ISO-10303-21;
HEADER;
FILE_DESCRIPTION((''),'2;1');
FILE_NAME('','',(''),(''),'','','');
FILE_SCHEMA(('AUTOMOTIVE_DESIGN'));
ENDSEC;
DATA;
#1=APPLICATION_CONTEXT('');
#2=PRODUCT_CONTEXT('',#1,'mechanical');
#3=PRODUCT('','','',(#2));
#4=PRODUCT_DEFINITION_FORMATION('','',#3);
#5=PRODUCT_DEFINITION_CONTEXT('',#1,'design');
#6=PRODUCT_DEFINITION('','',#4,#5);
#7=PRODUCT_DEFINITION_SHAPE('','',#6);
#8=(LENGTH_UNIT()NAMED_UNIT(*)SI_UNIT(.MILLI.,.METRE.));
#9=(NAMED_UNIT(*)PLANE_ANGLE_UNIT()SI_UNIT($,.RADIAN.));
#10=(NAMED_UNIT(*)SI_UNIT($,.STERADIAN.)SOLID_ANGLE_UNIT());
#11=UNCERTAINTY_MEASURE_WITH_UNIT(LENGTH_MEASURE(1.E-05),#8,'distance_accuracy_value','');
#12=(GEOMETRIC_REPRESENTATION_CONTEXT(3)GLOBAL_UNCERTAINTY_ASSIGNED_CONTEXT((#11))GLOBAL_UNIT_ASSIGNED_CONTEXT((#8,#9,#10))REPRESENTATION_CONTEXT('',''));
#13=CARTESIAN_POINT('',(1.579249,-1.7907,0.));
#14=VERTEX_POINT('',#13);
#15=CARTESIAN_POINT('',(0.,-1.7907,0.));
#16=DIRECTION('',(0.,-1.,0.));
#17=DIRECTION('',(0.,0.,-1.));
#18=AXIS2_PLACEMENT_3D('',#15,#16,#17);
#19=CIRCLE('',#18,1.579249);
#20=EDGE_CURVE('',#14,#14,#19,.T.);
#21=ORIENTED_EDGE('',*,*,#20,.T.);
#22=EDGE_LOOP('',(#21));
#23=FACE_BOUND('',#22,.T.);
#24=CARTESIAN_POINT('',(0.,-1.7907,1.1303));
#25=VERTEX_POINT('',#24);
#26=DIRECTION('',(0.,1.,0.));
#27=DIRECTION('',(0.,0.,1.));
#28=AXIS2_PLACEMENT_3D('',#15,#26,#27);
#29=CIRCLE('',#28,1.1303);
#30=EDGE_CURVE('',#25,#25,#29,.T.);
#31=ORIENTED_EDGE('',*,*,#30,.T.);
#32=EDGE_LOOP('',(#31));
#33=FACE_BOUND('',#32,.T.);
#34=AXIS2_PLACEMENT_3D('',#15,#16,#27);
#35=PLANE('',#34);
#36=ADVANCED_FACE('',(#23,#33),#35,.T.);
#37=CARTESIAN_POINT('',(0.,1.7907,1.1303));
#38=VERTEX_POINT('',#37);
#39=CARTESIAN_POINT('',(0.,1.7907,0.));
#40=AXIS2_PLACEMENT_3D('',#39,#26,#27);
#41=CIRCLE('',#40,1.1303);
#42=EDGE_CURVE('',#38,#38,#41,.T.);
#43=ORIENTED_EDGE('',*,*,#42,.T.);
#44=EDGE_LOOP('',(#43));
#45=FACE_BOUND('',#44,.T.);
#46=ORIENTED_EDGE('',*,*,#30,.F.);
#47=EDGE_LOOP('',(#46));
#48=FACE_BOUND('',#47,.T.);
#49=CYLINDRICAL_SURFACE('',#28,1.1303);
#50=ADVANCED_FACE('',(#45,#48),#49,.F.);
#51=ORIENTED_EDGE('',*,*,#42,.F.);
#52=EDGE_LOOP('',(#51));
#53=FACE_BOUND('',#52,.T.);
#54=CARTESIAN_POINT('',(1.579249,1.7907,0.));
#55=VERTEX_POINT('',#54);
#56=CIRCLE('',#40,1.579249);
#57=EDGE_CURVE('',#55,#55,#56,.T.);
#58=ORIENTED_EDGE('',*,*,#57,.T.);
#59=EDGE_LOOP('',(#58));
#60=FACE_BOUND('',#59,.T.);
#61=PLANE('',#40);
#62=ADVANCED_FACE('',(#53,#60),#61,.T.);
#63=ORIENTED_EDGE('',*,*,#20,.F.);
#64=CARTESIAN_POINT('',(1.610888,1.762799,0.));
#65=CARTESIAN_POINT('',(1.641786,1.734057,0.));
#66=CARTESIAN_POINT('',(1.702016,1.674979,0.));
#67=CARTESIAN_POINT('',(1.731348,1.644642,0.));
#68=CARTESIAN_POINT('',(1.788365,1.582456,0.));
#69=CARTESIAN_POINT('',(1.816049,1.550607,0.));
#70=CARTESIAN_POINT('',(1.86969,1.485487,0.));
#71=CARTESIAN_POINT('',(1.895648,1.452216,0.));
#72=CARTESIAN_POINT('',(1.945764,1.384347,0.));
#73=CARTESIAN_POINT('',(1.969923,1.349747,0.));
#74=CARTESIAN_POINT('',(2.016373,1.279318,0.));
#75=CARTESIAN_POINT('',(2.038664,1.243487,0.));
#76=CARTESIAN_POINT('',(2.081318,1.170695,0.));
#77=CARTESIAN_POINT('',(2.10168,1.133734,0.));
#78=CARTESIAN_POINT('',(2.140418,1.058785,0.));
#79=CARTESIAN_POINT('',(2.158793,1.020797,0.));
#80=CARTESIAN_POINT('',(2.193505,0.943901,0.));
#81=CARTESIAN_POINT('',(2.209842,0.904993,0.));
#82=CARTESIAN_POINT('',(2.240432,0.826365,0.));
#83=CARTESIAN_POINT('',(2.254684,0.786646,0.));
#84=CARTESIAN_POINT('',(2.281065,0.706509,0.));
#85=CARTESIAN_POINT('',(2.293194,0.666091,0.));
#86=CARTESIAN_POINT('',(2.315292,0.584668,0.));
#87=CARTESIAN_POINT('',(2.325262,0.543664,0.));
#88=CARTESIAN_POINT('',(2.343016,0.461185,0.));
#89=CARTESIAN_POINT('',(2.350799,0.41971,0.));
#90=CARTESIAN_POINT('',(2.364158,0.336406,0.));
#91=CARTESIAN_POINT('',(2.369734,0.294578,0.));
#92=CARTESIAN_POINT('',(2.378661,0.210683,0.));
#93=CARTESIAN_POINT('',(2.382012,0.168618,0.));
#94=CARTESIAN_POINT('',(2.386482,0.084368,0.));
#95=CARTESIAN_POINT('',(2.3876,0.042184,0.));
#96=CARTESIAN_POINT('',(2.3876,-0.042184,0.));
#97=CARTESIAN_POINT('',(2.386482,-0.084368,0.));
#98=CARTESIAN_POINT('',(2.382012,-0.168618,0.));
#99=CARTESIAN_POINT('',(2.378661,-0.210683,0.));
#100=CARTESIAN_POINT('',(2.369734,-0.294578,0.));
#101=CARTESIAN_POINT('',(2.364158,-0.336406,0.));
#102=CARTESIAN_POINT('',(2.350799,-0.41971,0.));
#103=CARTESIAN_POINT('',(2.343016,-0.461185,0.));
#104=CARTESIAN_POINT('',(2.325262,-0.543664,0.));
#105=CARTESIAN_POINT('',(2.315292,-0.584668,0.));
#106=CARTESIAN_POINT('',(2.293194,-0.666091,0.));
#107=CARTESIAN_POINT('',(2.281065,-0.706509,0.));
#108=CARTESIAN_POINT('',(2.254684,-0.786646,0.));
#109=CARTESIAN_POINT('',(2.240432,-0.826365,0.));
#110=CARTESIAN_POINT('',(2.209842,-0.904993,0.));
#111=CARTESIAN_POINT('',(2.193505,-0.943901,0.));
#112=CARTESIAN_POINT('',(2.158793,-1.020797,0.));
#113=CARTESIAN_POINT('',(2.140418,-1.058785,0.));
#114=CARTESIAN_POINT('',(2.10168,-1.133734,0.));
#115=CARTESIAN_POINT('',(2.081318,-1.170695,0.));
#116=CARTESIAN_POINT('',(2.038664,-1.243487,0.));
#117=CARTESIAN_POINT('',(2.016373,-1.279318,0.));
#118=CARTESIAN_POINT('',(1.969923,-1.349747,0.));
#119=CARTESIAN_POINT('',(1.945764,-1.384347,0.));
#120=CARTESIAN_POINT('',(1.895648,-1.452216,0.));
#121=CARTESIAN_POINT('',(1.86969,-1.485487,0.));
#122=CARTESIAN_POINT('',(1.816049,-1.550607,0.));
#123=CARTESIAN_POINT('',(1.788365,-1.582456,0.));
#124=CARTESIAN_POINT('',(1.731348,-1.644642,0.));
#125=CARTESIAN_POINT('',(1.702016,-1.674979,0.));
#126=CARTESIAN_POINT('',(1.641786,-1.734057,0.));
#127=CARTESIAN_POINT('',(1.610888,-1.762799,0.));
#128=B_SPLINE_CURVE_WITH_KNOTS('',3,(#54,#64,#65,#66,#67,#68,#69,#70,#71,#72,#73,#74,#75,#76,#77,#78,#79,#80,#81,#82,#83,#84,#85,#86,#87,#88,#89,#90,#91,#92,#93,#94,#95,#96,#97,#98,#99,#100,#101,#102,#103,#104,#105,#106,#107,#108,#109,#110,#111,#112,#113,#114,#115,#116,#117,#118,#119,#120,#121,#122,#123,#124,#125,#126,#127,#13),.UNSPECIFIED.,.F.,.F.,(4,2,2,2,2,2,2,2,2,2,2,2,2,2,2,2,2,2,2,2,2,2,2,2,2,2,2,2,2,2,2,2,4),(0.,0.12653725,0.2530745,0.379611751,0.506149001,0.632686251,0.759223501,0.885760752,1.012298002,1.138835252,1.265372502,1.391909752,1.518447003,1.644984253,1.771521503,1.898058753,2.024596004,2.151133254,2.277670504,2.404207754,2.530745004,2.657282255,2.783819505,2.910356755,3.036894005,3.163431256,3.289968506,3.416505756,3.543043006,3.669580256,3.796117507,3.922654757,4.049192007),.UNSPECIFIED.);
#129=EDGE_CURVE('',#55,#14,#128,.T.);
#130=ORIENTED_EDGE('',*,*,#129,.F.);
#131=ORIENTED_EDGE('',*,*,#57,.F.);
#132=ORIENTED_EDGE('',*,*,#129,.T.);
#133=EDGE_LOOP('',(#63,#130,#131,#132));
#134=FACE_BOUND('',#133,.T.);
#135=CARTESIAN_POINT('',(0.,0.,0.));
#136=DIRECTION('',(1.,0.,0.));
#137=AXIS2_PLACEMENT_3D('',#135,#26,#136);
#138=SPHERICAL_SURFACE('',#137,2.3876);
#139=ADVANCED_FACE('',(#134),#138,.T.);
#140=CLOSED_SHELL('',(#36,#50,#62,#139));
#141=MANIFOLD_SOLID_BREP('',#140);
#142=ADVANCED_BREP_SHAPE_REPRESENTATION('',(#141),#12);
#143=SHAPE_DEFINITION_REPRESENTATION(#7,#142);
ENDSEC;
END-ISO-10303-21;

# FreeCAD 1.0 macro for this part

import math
import FreeCAD as App
import Part
import Sketcher
Q = App.Units.Quantity

doc = App.newDocument("Part")
body = doc.addObject("PartDesign::Body", "Body")

sketch1 = doc.addObject("Sketcher::SketchObject", "Sketch")
body.addObject(sketch1)
sketch1.AttachmentSupport = (doc.XY_Plane, [""])
sketch1.MapMode = "FlatFace"
sketch1.addGeometry([
    Part.LineSegment(App.Vector(0, 2.3876, 0), App.Vector(0, -2.3876, 0)),
    Part.ArcOfCircle(Part.Circle(App.Vector(0, 0, 0), App.Vector(0, 0, 1), 2.3876), math.radians(-90), math.radians(90)),
], False)
sketch1.addConstraint([
    Sketcher.Constraint("Coincident", 0, 1, 1, 2),
    Sketcher.Constraint("Coincident", 1, 1, 0, 2),
    Sketcher.Constraint("Vertical", 0),
    Sketcher.Constraint("Coincident", 1, 3, -1, 1),
    Sketcher.Constraint("PointOnObject", 0, 1, -2),
    Sketcher.Constraint("Radius", 1, Q("0.094 in")),
])
revolution = doc.addObject("PartDesign::Revolution", "Revolution")
body.addObject(revolution)
revolution.Profile = sketch1
revolution.ReferenceAxis = (sketch1, ["V_Axis"])
revolution.Angle = 360

sketch2 = doc.addObject("Sketcher::SketchObject", "Sketch001")
body.addObject(sketch2)
sketch2.AttachmentSupport = (doc.XZ_Plane, [""])
sketch2.MapMode = "FlatFace"
sketch2.AttachmentOffset = App.Placement(App.Vector(0, 0, -0.0705 * 25.4), App.Rotation())
sketch2.addGeometry(Part.Circle(App.Vector(0, 0, 0), App.Vector(0, 0, 1), 2.3876), False)
sketch2.addConstraint([
    Sketcher.Constraint("Coincident", 0, 3, -1, 1),
    Sketcher.Constraint("Diameter", 0, Q("0.188 in")),
])
pocket1 = doc.addObject("PartDesign::Pocket", "Pocket")
body.addObject(pocket1)
pocket1.Profile = sketch2
pocket1.Type = "ThroughAll"
doc.recompute()

mirrored = doc.addObject("PartDesign::Mirrored", "Mirrored")
body.addObject(mirrored)
mirrored.Originals = [pocket1]
mirrored.MirrorPlane = (doc.XZ_Plane, [""])
body.Tip = mirrored

sketch3 = doc.addObject("Sketcher::SketchObject", "Sketch002")
body.addObject(sketch3)
sketch3.AttachmentSupport = (doc.XZ_Plane, [""])
sketch3.MapMode = "FlatFace"
sketch3.AttachmentOffset = App.Placement(App.Vector(0, 0, -0.0705 * 25.4), App.Rotation())
sketch3.addGeometry(Part.Circle(App.Vector(0, 0, 0), App.Vector(0, 0, 1), 1.1303), False)
sketch3.addConstraint([
    Sketcher.Constraint("Coincident", 0, 3, -1, 1),
    Sketcher.Constraint("Diameter", 0, Q("0.089 in")),
])
pocket2 = doc.addObject("PartDesign::Pocket", "Pocket001")
body.addObject(pocket2)
pocket2.Profile = sketch3
pocket2.Type = "ThroughAll"
pocket2.Reversed = True

doc.recompute()
